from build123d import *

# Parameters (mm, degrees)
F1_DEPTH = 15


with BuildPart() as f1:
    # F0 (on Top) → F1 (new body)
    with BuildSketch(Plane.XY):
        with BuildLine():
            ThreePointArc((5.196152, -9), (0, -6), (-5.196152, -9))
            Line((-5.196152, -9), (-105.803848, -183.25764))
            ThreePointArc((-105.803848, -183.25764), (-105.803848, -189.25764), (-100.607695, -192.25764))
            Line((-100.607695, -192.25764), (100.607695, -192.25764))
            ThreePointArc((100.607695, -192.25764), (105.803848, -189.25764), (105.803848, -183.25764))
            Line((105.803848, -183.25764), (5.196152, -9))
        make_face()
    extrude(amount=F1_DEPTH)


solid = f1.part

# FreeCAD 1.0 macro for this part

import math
import FreeCAD as App
import Part
import Sketcher
Q = App.Units.Quantity

doc = App.newDocument("Part")
body = doc.addObject("PartDesign::Body", "Body")

# Sketch on XY plane
sketch1 = body.newObject("Sketcher::SketchObject", "Sketch")
sketch1.AttachmentSupport = (doc.getObject("XY_Plane"), [""])
sketch1.MapMode = "FlatFace"
sketch1.addGeometry([
    Part.ArcOfCircle(Part.Circle(App.Vector(0, -12, 0), App.Vector(0, 0, 1), 6), math.radians(30), math.radians(150)),  # 0
    Part.LineSegment(App.Vector(-5, -9, 0), App.Vector(-106, -183, 0)),  # 1
    Part.ArcOfCircle(Part.Circle(App.Vector(-101, -186, 0), App.Vector(0, 0, 1), 6), math.radians(150), math.radians(270)),  # 2
    Part.LineSegment(App.Vector(-101, -192, 0), App.Vector(101, -192, 0)),  # 3
    Part.ArcOfCircle(Part.Circle(App.Vector(101, -186, 0), App.Vector(0, 0, 1), 6), math.radians(-90), math.radians(30)),  # 4
    Part.LineSegment(App.Vector(106, -183, 0), App.Vector(5, -9, 0)),  # 5
], False)
sketch1.addConstraint([
    Sketcher.Constraint("Tangent", 0, 2, 1, 1),
    Sketcher.Constraint("Tangent", 1, 2, 2, 1),
    Sketcher.Constraint("Tangent", 2, 2, 3, 1),
    Sketcher.Constraint("Tangent", 3, 2, 4, 1),
    Sketcher.Constraint("Tangent", 4, 2, 5, 1),
    Sketcher.Constraint("Tangent", 5, 2, 0, 1),
    Sketcher.Constraint("Horizontal", 3),
    Sketcher.Constraint("Equal", 0, 2),
    Sketcher.Constraint("Equal", 2, 4),
    Sketcher.Constraint("Symmetric", 1, 2, 4, 2, -2),
    Sketcher.Constraint("Radius", 0, Q("5.999999 mm")),
    Sketcher.Constraint("Angle", 1, Q("-120 deg")),
    Sketcher.Constraint("DistanceY", 0, 3, -1, 1, Q("11.999999 mm")),
    Sketcher.Constraint("DistanceX", 3, 1, 3, 2, Q("201.21539 mm")),
])
pad1 = body.newObject("PartDesign::Pad", "Pad")
pad1.Profile = sketch1
pad1.Length = 15

doc.recompute()
